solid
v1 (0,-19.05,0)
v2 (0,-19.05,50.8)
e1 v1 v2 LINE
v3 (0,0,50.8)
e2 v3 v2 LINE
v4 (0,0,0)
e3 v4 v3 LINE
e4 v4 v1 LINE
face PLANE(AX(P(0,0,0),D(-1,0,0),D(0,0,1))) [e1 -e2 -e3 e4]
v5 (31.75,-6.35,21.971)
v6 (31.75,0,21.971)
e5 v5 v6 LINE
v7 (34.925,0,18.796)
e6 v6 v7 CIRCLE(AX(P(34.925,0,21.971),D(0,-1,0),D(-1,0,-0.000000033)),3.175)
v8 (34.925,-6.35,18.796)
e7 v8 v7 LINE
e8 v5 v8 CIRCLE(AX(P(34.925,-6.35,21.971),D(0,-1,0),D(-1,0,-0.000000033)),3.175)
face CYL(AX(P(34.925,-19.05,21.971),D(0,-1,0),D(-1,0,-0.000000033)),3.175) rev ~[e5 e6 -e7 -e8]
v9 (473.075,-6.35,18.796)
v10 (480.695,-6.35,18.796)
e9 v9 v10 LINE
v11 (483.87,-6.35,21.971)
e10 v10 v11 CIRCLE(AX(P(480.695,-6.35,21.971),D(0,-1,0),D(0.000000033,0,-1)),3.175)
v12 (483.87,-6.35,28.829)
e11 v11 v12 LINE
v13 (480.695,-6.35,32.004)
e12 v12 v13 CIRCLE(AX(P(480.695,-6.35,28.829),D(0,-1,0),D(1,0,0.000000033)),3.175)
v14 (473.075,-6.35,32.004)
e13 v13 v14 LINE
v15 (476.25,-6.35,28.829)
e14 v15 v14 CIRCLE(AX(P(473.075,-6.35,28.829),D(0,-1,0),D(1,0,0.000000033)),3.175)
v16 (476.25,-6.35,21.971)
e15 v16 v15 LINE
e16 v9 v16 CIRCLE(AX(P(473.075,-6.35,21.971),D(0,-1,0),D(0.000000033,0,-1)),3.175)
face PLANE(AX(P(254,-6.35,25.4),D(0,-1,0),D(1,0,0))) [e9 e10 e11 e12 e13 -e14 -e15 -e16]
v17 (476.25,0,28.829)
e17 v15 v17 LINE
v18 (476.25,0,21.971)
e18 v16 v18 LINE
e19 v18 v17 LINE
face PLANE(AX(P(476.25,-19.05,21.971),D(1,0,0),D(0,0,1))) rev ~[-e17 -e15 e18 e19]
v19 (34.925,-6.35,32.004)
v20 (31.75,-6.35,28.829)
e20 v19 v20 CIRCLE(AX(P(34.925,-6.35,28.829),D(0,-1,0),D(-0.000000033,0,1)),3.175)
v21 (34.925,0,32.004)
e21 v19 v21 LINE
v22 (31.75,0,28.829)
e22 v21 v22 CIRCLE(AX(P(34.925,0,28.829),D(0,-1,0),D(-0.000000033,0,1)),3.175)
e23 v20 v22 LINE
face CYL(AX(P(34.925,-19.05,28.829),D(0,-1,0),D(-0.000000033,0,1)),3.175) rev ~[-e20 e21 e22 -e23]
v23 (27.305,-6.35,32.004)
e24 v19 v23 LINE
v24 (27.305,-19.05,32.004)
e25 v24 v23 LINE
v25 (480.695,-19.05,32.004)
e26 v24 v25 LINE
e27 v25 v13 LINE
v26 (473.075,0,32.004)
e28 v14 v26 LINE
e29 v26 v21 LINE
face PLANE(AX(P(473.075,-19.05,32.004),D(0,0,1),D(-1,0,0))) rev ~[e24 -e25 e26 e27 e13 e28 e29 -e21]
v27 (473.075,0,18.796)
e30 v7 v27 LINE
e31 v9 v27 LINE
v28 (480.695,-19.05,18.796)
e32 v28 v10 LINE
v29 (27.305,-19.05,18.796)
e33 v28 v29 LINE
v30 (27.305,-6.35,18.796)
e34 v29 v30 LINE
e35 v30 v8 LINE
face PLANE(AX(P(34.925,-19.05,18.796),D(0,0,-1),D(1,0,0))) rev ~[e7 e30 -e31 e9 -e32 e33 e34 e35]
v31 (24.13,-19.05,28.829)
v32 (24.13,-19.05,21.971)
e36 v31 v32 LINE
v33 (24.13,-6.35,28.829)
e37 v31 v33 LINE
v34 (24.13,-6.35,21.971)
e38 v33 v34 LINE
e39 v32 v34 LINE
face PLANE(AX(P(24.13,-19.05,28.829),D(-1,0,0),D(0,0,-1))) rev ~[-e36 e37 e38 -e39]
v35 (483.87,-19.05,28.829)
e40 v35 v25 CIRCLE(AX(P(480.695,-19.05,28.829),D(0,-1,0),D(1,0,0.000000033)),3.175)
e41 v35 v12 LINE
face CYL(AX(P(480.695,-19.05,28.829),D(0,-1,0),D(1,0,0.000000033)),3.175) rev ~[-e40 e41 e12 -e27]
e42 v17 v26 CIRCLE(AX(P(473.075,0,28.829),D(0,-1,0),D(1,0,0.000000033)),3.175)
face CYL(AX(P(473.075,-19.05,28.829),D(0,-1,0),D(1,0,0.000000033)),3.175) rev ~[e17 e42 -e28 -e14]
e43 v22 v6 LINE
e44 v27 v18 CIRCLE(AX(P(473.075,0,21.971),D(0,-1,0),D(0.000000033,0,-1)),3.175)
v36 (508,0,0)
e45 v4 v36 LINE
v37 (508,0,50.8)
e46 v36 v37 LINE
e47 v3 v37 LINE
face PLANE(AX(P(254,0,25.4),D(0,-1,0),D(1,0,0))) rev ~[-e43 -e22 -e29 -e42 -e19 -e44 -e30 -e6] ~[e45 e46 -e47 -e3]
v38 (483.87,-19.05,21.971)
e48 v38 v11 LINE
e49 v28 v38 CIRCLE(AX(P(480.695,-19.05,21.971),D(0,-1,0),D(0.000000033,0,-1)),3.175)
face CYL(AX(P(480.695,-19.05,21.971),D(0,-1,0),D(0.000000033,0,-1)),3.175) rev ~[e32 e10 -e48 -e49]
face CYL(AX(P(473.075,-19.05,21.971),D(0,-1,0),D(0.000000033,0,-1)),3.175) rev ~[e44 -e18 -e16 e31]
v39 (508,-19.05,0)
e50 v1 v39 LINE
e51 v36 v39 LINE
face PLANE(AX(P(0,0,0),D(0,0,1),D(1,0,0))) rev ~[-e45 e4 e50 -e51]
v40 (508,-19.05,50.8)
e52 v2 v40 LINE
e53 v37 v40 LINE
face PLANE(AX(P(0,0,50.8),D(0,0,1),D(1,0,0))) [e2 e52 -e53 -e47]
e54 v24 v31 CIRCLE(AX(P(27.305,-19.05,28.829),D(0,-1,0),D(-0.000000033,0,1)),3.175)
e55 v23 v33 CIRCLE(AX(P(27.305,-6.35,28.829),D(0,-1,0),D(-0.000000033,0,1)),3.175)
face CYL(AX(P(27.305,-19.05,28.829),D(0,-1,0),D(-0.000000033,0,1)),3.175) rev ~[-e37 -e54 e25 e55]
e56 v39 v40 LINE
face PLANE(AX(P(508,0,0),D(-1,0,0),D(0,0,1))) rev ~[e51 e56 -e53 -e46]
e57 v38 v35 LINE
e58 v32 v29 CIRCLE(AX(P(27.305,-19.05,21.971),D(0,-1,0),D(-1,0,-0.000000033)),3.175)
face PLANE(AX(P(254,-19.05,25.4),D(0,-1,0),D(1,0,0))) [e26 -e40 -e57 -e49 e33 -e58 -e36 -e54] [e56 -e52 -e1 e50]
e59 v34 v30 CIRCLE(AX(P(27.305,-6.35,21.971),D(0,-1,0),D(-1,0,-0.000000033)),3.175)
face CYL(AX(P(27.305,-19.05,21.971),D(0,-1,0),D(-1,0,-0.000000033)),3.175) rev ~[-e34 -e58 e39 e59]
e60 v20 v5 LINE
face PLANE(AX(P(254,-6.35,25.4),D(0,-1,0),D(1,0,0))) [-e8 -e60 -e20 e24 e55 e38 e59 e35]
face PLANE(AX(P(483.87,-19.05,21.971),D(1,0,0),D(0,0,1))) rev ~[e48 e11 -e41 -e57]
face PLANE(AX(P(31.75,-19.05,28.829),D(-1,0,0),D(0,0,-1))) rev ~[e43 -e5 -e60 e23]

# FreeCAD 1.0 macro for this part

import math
import FreeCAD as App
import Part
import Sketcher
Q = App.Units.Quantity


def add_polygon(sketch, points):
    """Adds a closed chain of lines whose ends are joined by coincident constraints."""
    first, n = sketch.GeometryCount, len(points)
    for a, b in zip(points, points[1:] + points[:1]):
        sketch.addGeometry(Part.LineSegment(App.Vector(*a, 0), App.Vector(*b, 0)), False)
    for i in range(n):
        sketch.addConstraint(Sketcher.Constraint("Coincident", first + i, 2, first + (i + 1) % n, 1))

doc = App.newDocument("Part")
body = doc.addObject("PartDesign::Body", "Body")

# Sketch on XZ plane
sketch1 = body.newObject("Sketcher::SketchObject", "Sketch")
sketch1.AttachmentSupport = (doc.getObject("XZ_Plane"), [""])
sketch1.MapMode = "FlatFace"
add_polygon(sketch1, [(0, 51), (0, 0), (508, 0), (508, 51)])  # lines 0-3
sketch1.addConstraint(Sketcher.Constraint("Vertical", 0))
sketch1.addConstraint(Sketcher.Constraint("Horizontal", 1))
sketch1.addConstraint(Sketcher.Constraint("Vertical", 2))
sketch1.addConstraint(Sketcher.Constraint("Horizontal", 3))
sketch1.addConstraint(Sketcher.Constraint("Coincident", 0, 2, -1, 1))
sketch1.addConstraint(Sketcher.Constraint("DistanceX", 1, 1, 1, 2, Q("20 in")))
sketch1.addConstraint(Sketcher.Constraint("DistanceY", 0, 2, 0, 1, Q("2 in")))
pad1 = body.newObject("PartDesign::Pad", "Pad")
pad1.Profile = sketch1
pad1.Length = Q("0.75 in")

# Sketch on XZ plane
sketch2 = body.newObject("Sketcher::SketchObject", "Sketch001")
sketch2.AttachmentSupport = (doc.getObject("XZ_Plane"), [""])
sketch2.MapMode = "FlatFace"
sketch2.AttachmentOffset = App.Placement(App.Vector(0, 0, 0.75 * 25.4), App.Rotation())
sketch2.addGeometry(Part.LineSegment(App.Vector(480.7, 32, 0), App.Vector(27.3, 32, 0)), False)
sketch2.addGeometry(Part.ArcOfCircle(Part.Circle(App.Vector(27.3, 28.8, 0), App.Vector(0, 0, 1), 3.2), math.radians(90), math.radians(180)), False)
sketch2.addGeometry(Part.LineSegment(App.Vector(24.1, 28.8, 0), App.Vector(24.1, 22, 0)), False)
sketch2.addGeometry(Part.ArcOfCircle(Part.Circle(App.Vector(27.3, 22, 0), App.Vector(0, 0, 1), 3.2), math.radians(-180), math.radians(-90)), False)
sketch2.addGeometry(Part.LineSegment(App.Vector(27.3, 18.8, 0), App.Vector(480.7, 18.8, 0)), False)
sketch2.addGeometry(Part.ArcOfCircle(Part.Circle(App.Vector(480.7, 22, 0), App.Vector(0, 0, 1), 3.2), math.radians(-90), math.radians(0)), False)
sketch2.addGeometry(Part.LineSegment(App.Vector(483.9, 22, 0), App.Vector(483.9, 28.8, 0)), False)
sketch2.addGeometry(Part.ArcOfCircle(Part.Circle(App.Vector(480.7, 28.8, 0), App.Vector(0, 0, 1), 3.2), math.radians(0), math.radians(90)), False)
sketch2.addConstraint(Sketcher.Constraint("Tangent", 0, 2, 1, 1))
sketch2.addConstraint(Sketcher.Constraint("Tangent", 1, 2, 2, 1))
sketch2.addConstraint(Sketcher.Constraint("Tangent", 2, 2, 3, 1))
sketch2.addConstraint(Sketcher.Constraint("Tangent", 3, 2, 4, 1))
sketch2.addConstraint(Sketcher.Constraint("Tangent", 4, 2, 5, 1))
sketch2.addConstraint(Sketcher.Constraint("Tangent", 5, 2, 6, 1))
sketch2.addConstraint(Sketcher.Constraint("Tangent", 6, 2, 7, 1))
sketch2.addConstraint(Sketcher.Constraint("Tangent", 7, 2, 0, 1))
sketch2.addConstraint(Sketcher.Constraint("Horizontal", 0))
sketch2.addConstraint(Sketcher.Constraint("Vertical", 2))
sketch2.addConstraint(Sketcher.Constraint("Horizontal", 4))
sketch2.addConstraint(Sketcher.Constraint("Vertical", 6))
sketch2.addConstraint(Sketcher.Constraint("Equal", 1, 3))
sketch2.addConstraint(Sketcher.Constraint("Equal", 3, 5))
sketch2.addConstraint(Sketcher.Constraint("Equal", 5, 7))
sketch2.addConstraint(Sketcher.Constraint("Radius", 1, Q("0.125 in")))
sketch2.addConstraint(Sketcher.Constraint("DistanceX", 0, 2, 0, 1, Q("17.85 in")))
sketch2.addConstraint(Sketcher.Constraint("DistanceY", 2, 2, 2, 1, Q("0.27 in")))
sketch2.addConstraint(Sketcher.Constraint("DistanceY", -1, 1, 0, 2, Q("1.26 in")))
sketch2.addConstraint(Sketcher.Constraint("DistanceX", -1, 1, 1, 2, Q("0.95 in")))
pocket1 = body.newObject("PartDesign::Pocket", "Pocket")
pocket1.Profile = sketch2
pocket1.Length = Q("0.5 in")

# Sketch on XZ plane
sketch3 = body.newObject("Sketcher::SketchObject", "Sketch002")
sketch3.AttachmentSupport = (doc.getObject("XZ_Plane"), [""])
sketch3.MapMode = "FlatFace"
sketch3.AttachmentOffset = App.Placement(App.Vector(0, 0, 0.75 * 25.4), App.Rotation())
sketch3.addGeometry(Part.LineSegment(App.Vector(473.1, 32, 0), App.Vector(34.9, 32, 0)), False)
sketch3.addGeometry(Part.ArcOfCircle(Part.Circle(App.Vector(34.9, 28.8, 0), App.Vector(0, 0, 1), 3.2), math.radians(90), math.radians(180)), False)
sketch3.addGeometry(Part.LineSegment(App.Vector(31.8, 28.8, 0), App.Vector(31.8, 22, 0)), False)
sketch3.addGeometry(Part.ArcOfCircle(Part.Circle(App.Vector(34.9, 22, 0), App.Vector(0, 0, 1), 3.2), math.radians(-180), math.radians(-90)), False)
sketch3.addGeometry(Part.LineSegment(App.Vector(34.9, 18.8, 0), App.Vector(473.1, 18.8, 0)), False)
sketch3.addGeometry(Part.ArcOfCircle(Part.Circle(App.Vector(473.1, 22, 0), App.Vector(0, 0, 1), 3.2), math.radians(-90), math.radians(0)), False)
sketch3.addGeometry(Part.LineSegment(App.Vector(476.2, 22, 0), App.Vector(476.2, 28.8, 0)), False)
sketch3.addGeometry(Part.ArcOfCircle(Part.Circle(App.Vector(473.1, 28.8, 0), App.Vector(0, 0, 1), 3.2), math.radians(0), math.radians(90)), False)
sketch3.addConstraint(Sketcher.Constraint("Tangent", 0, 2, 1, 1))
sketch3.addConstraint(Sketcher.Constraint("Tangent", 1, 2, 2, 1))
sketch3.addConstraint(Sketcher.Constraint("Tangent", 2, 2, 3, 1))
sketch3.addConstraint(Sketcher.Constraint("Tangent", 3, 2, 4, 1))
sketch3.addConstraint(Sketcher.Constraint("Tangent", 4, 2, 5, 1))
sketch3.addConstraint(Sketcher.Constraint("Tangent", 5, 2, 6, 1))
sketch3.addConstraint(Sketcher.Constraint("Tangent", 6, 2, 7, 1))
sketch3.addConstraint(Sketcher.Constraint("Tangent", 7, 2, 0, 1))
sketch3.addConstraint(Sketcher.Constraint("Horizontal", 0))
sketch3.addConstraint(Sketcher.Constraint("Vertical", 2))
sketch3.addConstraint(Sketcher.Constraint("Horizontal", 4))
sketch3.addConstraint(Sketcher.Constraint("Vertical", 6))
sketch3.addConstraint(Sketcher.Constraint("Equal", 1, 3))
sketch3.addConstraint(Sketcher.Constraint("Equal", 3, 5))
sketch3.addConstraint(Sketcher.Constraint("Equal", 5, 7))
sketch3.addConstraint(Sketcher.Constraint("Radius", 1, Q("0.125 in")))
sketch3.addConstraint(Sketcher.Constraint("DistanceX", 0, 2, 0, 1, Q("17.25 in")))
sketch3.addConstraint(Sketcher.Constraint("DistanceY", 2, 2, 2, 1, Q("0.27 in")))
sketch3.addConstraint(Sketcher.Constraint("DistanceY", -1, 1, 0, 2, Q("1.26 in")))
sketch3.addConstraint(Sketcher.Constraint("DistanceX", -1, 1, 1, 2, Q("1.25 in")))
pocket2 = body.newObject("PartDesign::Pocket", "Pocket001")
pocket2.Profile = sketch3
pocket2.Length = Q("1 in")

doc.recompute()
